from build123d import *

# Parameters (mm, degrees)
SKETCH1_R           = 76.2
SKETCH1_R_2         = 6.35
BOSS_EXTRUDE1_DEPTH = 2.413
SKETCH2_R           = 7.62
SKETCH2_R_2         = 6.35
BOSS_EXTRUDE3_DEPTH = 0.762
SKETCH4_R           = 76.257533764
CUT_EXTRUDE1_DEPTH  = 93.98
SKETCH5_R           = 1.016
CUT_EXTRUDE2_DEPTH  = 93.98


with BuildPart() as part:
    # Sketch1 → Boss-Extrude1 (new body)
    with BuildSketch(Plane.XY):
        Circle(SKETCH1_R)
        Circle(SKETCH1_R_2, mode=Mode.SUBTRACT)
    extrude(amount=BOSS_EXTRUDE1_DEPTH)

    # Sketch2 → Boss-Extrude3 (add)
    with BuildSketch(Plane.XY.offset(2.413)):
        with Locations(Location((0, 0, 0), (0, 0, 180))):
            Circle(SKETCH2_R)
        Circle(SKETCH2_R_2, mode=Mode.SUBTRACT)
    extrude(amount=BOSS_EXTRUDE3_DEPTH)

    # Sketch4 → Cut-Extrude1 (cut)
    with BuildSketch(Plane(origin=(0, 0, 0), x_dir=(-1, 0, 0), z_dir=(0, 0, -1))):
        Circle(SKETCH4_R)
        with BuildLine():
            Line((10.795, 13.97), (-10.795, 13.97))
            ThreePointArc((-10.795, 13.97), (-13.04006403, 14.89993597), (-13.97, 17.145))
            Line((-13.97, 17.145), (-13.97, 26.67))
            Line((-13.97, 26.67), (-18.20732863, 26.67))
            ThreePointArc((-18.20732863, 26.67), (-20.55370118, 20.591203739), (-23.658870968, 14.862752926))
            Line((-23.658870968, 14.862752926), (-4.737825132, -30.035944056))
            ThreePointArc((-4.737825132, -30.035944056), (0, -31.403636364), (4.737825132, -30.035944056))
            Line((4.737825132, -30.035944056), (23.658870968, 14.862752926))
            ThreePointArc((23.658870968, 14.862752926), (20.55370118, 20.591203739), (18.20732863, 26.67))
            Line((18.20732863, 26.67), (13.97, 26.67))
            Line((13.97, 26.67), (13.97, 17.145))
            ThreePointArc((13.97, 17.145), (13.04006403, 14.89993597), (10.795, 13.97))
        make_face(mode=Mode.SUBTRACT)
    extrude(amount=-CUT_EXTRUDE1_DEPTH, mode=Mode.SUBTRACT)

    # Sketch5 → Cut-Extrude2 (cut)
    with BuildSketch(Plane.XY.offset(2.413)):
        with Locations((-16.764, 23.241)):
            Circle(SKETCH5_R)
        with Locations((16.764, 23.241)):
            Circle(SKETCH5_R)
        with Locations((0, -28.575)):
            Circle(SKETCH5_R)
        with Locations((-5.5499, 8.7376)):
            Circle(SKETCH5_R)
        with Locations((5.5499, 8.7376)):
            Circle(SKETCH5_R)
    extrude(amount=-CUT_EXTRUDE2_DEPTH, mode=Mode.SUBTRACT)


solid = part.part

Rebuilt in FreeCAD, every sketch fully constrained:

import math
import FreeCAD as App
import Part
import Sketcher
Q = App.Units.Quantity

doc = App.newDocument("Part")
body = doc.addObject("PartDesign::Body", "Body")

# Sketch on XY plane
sketch1 = body.newObject("Sketcher::SketchObject", "Sketch")
sketch1.AttachmentSupport = (doc.getObject("XY_Plane"), [""])
sketch1.MapMode = "FlatFace"
sketch1.addGeometry([
    Part.Circle(App.Vector(0, 0, 0), App.Vector(0, 0, 1), 76),
    Part.Circle(App.Vector(0, 0, 0), App.Vector(0, 0, 1), 6),
], False)
sketch1.addConstraint([
    Sketcher.Constraint("Coincident", 0, 3, -1, 1),
    Sketcher.Constraint("Coincident", 1, 3, -1, 1),
    Sketcher.Constraint("Diameter", 0, Q("6 in")),
    Sketcher.Constraint("Diameter", 1, Q("0.5 in")),
])
pad1 = body.newObject("PartDesign::Pad", "Pad")
pad1.Profile = sketch1
pad1.Length = Q("0.095 in")

# Sketch on XY plane
sketch2 = body.newObject("Sketcher::SketchObject", "Sketch001")
sketch2.AttachmentSupport = (doc.getObject("XY_Plane"), [""])
sketch2.MapMode = "FlatFace"
sketch2.AttachmentOffset = App.Placement(App.Vector(0, 0, 0.095 * 25.4), App.Rotation())
sketch2.addGeometry([
    Part.Circle(App.Vector(0, 0, 0), App.Vector(0, 0, 1), 8),
    Part.Circle(App.Vector(0, 0, 0), App.Vector(0, 0, 1), 6),
], False)
sketch2.addConstraint([
    Sketcher.Constraint("Coincident", 0, 3, -1, 1),
    Sketcher.Constraint("Coincident", 1, 3, -1, 1),
    Sketcher.Constraint("Diameter", 0, Q("0.6 in")),
    Sketcher.Constraint("Diameter", 1, Q("0.5 in")),
])
pad2 = body.newObject("PartDesign::Pad", "Pad001")
pad2.Profile = sketch2
pad2.Length = Q("0.03 in")

# Sketch on XY plane
sketch3 = body.newObject("Sketcher::SketchObject", "Sketch002")
sketch3.AttachmentSupport = (doc.getObject("XY_Plane"), [""])
sketch3.MapMode = "FlatFace"
sketch3.addGeometry([
    Part.Circle(App.Vector(0, 0, 0), App.Vector(0, 0, 1), 76.3),  # 0
    Part.LineSegment(App.Vector(10.8, 14, 0), App.Vector(-10.8, 14, 0)),  # 1
    Part.ArcOfCircle(Part.Circle(App.Vector(-10.8, 17.1, 0), App.Vector(0, 0, 1), 3.2), math.radians(-180), math.radians(-90)),  # 2
    Part.LineSegment(App.Vector(-14, 17.1, 0), App.Vector(-14, 26.7, 0)),  # 3
    Part.LineSegment(App.Vector(-14, 26.7, 0), App.Vector(-18.2, 26.7, 0)),  # 4
    Part.ArcOfCircle(Part.Circle(App.Vector(-66.7, 41.9, 0), App.Vector(0, 0, 1), 50.8), math.radians(-32.14), math.radians(-17.43)),  # 5
    Part.LineSegment(App.Vector(-23.7, 14.9, 0), App.Vector(-4.7, -30, 0)),  # 6
    Part.ArcOfCircle(Part.Circle(App.Vector(0, -22.5, 0), App.Vector(0, 0, 1), 8.9), math.radians(-122), math.radians(-58)),  # 7
    Part.LineSegment(App.Vector(4.7, -30, 0), App.Vector(23.7, 14.9, 0)),  # 8
    Part.ArcOfCircle(Part.Circle(App.Vector(66.7, 41.9, 0), App.Vector(0, 0, 1), 50.8), math.radians(-162.57), math.radians(-147.86)),  # 9
    Part.LineSegment(App.Vector(18.2, 26.7, 0), App.Vector(14, 26.7, 0)),  # 10
    Part.LineSegment(App.Vector(14, 26.7, 0), App.Vector(14, 17.1, 0)),  # 11
    Part.ArcOfCircle(Part.Circle(App.Vector(10.8, 17.1, 0), App.Vector(0, 0, 1), 3.2), math.radians(-90), math.radians(0)),  # 12
], False)
sketch3.addConstraint([
    Sketcher.Constraint("Tangent", 1, 2, 2, 2),
    Sketcher.Constraint("Tangent", 2, 1, 3, 1),
    Sketcher.Constraint("Coincident", 3, 2, 4, 1),
    Sketcher.Constraint("Coincident", 4, 2, 5, 2),
    Sketcher.Constraint("Coincident", 5, 1, 6, 1),
    Sketcher.Constraint("Coincident", 6, 2, 7, 1),
    Sketcher.Constraint("Coincident", 7, 2, 8, 1),
    Sketcher.Constraint("Coincident", 8, 2, 9, 2),
    Sketcher.Constraint("Coincident", 9, 1, 10, 1),
    Sketcher.Constraint("Coincident", 10, 2, 11, 1),
    Sketcher.Constraint("Tangent", 11, 2, 12, 2),
    Sketcher.Constraint("Tangent", 12, 1, 1, 1),
    Sketcher.Constraint("Horizontal", 1),
    Sketcher.Constraint("Vertical", 3),
    Sketcher.Constraint("Horizontal", 4),
    Sketcher.Constraint("Horizontal", 10),
    Sketcher.Constraint("Vertical", 11),
    Sketcher.Constraint("Coincident", 0, 3, -1, 1),
    Sketcher.Constraint("Equal", 5, 9),
    Sketcher.Constraint("Equal", 2, 12),
    Sketcher.Constraint("Symmetric", 5, 3, 9, 3, -2),
    Sketcher.Constraint("Symmetric", 6, 2, 7, 2, -2),
    Sketcher.Constraint("Symmetric", 3, 2, 10, 2, -2),
    Sketcher.Constraint("Horizontal", 5, 1, 8, 2),
    Sketcher.Constraint("Radius", 5, Q("2 in")),
    Sketcher.Constraint("Radius", 7, Q("0.35 in")),
    Sketcher.Constraint("Radius", 2, Q("0.125 in")),
    Sketcher.Constraint("DistanceX", 1, 2, 1, 1, Q("0.85 in")),
    Sketcher.Constraint("DistanceX", 5, 3, 2, 3, Q("2.2 in")),
    Sketcher.Constraint("DistanceY", 1, 2, 3, 2, Q("0.5 in")),
    Sketcher.Constraint("DistanceY", -1, 1, 1, 2, Q("0.55 in")),
    Sketcher.Constraint("Diameter", 0, 152.515068),
    Sketcher.Constraint("DistanceX", 4, 2, 4, 1, 4.237329),
    Sketcher.Constraint("DistanceX", 5, 1, -1, 1, 23.658871),
    Sketcher.Constraint("DistanceX", 6, 2, 7, 2, 9.47565),
    Sketcher.Constraint("Distance", 6, 48.722674),
])
pocket1 = body.newObject("PartDesign::Pocket", "Pocket")
pocket1.Profile = sketch3
pocket1.Length = Q("3.7 in")
pocket1.Reversed = True

# Sketch on XY plane
sketch4 = body.newObject("Sketcher::SketchObject", "Sketch003")
sketch4.AttachmentSupport = (doc.getObject("XY_Plane"), [""])
sketch4.MapMode = "FlatFace"
sketch4.AttachmentOffset = App.Placement(App.Vector(0, 0, 0.095 * 25.4), App.Rotation())
sketch4.addGeometry([
    Part.Circle(App.Vector(-16.8, 23.2, 0), App.Vector(0, 0, 1), 1),  # 0
    Part.Circle(App.Vector(16.8, 23.2, 0), App.Vector(0, 0, 1), 1),  # 1
    Part.Circle(App.Vector(0, -28.6, 0), App.Vector(0, 0, 1), 1),  # 2
    Part.Circle(App.Vector(-5.5, 8.7, 0), App.Vector(0, 0, 1), 1),  # 3
    Part.Circle(App.Vector(5.5, 8.7, 0), App.Vector(0, 0, 1), 1),  # 4
], False)
sketch4.addConstraint([
    Sketcher.Constraint("Equal", 0, 1),
    Sketcher.Constraint("Equal", 1, 2),
    Sketcher.Constraint("Equal", 2, 3),
    Sketcher.Constraint("Equal", 3, 4),
    Sketcher.Constraint("Symmetric", 0, 3, 1, 3, -2),
    Sketcher.Constraint("Symmetric", 3, 3, 4, 3, -2),
    Sketcher.Constraint("PointOnObject", 2, 3, -2),
    Sketcher.Constraint("Diameter", 0, Q("0.08 in")),
    Sketcher.Constraint("DistanceX", 0, 3, -1, 1, Q("0.66 in")),
    Sketcher.Constraint("DistanceY", 2, 3, 0, 3, Q("2.04 in")),
    Sketcher.Constraint("DistanceY", -1, 1, 0, 3, Q("0.915 in")),
    Sketcher.Constraint("DistanceY", -1, 1, 3, 3, Q("0.344 in")),
    Sketcher.Constraint("DistanceX", 3, 3, 4, 3, Q("0.437 in")),
])
pocket2 = body.newObject("PartDesign::Pocket", "Pocket001")
pocket2.Profile = sketch4
pocket2.Length = Q("3.7 in")

doc.recompute()
